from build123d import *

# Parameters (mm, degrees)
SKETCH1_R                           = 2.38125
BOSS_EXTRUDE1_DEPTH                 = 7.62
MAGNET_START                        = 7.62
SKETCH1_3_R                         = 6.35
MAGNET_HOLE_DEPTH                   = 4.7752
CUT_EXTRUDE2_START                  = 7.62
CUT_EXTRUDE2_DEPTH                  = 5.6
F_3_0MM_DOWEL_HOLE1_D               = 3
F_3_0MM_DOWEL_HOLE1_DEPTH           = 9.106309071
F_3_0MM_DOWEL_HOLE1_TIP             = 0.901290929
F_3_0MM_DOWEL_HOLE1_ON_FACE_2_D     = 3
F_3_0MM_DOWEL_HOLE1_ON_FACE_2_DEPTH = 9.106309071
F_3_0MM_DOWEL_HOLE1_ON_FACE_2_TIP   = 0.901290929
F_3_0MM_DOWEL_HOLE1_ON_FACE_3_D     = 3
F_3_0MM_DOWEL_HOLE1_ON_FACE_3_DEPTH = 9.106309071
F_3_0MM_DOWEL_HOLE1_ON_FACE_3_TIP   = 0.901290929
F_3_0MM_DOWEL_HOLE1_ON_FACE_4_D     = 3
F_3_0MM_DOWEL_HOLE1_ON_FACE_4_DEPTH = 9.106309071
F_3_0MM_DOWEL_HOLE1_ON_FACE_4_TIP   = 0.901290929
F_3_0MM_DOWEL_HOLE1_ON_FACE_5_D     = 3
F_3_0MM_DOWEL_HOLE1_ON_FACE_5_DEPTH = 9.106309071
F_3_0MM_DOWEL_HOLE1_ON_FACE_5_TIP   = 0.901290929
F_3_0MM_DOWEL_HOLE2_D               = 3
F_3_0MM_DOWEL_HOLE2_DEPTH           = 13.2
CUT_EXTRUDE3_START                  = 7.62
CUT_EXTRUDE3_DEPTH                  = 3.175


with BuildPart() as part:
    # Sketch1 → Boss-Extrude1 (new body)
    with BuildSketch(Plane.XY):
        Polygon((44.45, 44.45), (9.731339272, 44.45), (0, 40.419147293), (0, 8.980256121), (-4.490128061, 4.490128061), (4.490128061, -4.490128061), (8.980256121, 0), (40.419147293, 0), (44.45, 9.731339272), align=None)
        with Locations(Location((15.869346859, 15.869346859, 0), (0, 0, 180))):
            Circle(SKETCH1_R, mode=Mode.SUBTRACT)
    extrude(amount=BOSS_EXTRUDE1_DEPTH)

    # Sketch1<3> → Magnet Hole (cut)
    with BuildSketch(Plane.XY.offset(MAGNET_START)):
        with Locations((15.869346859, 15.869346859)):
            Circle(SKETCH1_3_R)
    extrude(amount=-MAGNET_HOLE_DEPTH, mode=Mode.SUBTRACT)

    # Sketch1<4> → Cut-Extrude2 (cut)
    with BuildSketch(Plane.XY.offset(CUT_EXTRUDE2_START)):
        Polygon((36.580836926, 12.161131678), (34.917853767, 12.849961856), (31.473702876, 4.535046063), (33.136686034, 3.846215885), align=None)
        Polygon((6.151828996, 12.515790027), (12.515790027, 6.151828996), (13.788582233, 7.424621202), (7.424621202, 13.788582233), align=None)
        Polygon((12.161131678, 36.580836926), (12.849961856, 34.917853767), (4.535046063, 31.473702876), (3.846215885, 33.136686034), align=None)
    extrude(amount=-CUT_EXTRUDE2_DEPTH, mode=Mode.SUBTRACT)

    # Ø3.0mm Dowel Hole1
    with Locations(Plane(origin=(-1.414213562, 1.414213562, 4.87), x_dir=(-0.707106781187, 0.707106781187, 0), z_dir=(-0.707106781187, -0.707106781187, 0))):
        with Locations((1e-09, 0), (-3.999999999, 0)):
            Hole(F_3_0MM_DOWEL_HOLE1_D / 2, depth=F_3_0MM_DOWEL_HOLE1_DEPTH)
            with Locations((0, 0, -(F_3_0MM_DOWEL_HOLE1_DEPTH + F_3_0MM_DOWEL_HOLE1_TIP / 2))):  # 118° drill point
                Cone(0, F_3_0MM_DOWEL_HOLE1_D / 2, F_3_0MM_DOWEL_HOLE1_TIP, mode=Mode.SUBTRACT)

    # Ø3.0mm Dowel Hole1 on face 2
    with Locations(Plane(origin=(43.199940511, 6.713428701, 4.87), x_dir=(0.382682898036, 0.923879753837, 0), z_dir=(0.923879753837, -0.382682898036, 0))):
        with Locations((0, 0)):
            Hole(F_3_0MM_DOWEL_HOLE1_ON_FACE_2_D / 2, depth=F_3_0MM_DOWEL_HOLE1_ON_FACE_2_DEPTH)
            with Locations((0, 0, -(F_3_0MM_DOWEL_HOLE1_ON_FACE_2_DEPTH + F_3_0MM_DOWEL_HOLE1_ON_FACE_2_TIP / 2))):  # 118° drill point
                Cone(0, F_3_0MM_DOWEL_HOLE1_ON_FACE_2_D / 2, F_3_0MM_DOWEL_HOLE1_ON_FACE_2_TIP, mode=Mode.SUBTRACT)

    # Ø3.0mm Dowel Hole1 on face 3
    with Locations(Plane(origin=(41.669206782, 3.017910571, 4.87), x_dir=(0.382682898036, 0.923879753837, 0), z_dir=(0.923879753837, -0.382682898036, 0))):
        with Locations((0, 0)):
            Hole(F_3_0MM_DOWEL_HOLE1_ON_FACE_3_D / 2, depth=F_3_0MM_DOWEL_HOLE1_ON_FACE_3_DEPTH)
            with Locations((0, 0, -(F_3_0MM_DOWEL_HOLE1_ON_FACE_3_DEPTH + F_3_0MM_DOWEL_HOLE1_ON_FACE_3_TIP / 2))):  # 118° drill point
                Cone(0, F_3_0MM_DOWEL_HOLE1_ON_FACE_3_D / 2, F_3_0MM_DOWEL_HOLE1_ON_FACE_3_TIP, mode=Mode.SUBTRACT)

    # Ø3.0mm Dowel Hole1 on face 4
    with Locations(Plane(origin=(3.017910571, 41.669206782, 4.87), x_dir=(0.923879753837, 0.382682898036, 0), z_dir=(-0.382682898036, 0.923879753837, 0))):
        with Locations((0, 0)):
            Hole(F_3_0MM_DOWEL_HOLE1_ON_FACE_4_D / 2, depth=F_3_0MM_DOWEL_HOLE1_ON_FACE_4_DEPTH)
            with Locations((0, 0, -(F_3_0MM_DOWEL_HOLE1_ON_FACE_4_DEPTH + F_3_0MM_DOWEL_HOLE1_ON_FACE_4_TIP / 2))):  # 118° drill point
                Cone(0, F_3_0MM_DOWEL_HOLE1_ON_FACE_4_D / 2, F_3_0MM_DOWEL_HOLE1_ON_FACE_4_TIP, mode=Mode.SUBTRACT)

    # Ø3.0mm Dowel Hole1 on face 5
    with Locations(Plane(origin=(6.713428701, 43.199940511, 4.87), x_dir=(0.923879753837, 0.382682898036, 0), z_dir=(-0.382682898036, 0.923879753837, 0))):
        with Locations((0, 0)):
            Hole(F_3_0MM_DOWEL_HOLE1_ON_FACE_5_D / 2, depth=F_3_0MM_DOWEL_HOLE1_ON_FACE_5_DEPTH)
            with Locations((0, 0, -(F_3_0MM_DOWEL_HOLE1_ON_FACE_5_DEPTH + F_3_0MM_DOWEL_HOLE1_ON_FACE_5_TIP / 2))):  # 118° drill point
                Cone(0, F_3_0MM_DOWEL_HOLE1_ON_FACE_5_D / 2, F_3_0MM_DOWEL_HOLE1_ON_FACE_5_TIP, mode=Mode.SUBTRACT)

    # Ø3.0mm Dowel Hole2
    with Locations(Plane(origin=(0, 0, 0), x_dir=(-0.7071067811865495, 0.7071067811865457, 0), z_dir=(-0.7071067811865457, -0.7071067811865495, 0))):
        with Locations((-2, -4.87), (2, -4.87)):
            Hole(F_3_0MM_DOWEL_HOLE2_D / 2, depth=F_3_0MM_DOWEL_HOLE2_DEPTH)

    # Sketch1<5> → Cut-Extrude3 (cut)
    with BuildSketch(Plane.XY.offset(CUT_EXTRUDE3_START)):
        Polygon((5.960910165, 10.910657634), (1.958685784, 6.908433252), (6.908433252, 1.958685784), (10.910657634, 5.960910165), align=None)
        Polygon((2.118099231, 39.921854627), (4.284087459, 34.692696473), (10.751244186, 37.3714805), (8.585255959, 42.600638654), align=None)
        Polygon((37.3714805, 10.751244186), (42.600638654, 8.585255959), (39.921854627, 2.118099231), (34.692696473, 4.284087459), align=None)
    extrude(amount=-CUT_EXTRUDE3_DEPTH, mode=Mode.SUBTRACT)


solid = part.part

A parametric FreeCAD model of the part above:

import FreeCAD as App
import Part
import Sketcher

V = App.Vector
Q = App.Units.Quantity


def add_polygon(sketch, points):
    """Adds a closed chain of lines whose ends are joined by coincident constraints."""
    first, n = sketch.GeometryCount, len(points)
    for a, b in zip(points, points[1:] + points[:1]):
        sketch.addGeometry(Part.LineSegment(App.Vector(*a, 0), App.Vector(*b, 0)), False)
    for i in range(n):
        sketch.addConstraint(Sketcher.Constraint("Coincident", first + i, 2, first + (i + 1) % n, 1))

doc = App.newDocument("Part")
body = doc.addObject("PartDesign::Body", "Body")

# Sketch on XY plane
sketch1 = body.newObject("Sketcher::SketchObject", "Sketch")
sketch1.AttachmentSupport = (doc.getObject("XY_Plane"), [""])
sketch1.MapMode = "FlatFace"
add_polygon(sketch1, [(44.5, 44.5), (9.7, 44.5), (0, 40.4), (0, 9), (-4.5, 4.5), (4.5, -4.5), (9, 0), (40.4, 0), (44.5, 9.7)])  # lines 0-8
sketch1.addGeometry(Part.Circle(V(15.9, 15.9, 0), V(0, 0, 1), 2.4), False)  # 9
sketch1.addConstraint([
    Sketcher.Constraint("Horizontal", 0),
    Sketcher.Constraint("Vertical", 2),
    Sketcher.Constraint("Horizontal", 6),
    Sketcher.Constraint("Vertical", 8),
    Sketcher.Constraint("Symmetric", 3, 2, 4, 2, -1, 1),
    Sketcher.Constraint("PointOnObject", 1, 2, -2),
    Sketcher.Constraint("PointOnObject", 5, 2, -1),
    Sketcher.Constraint("Perpendicular", 3, 4),
    Sketcher.Constraint("Perpendicular", 4, 5),
    Sketcher.Constraint("Equal", 6, 2),
    Sketcher.Constraint("Equal", 0, 8),
    Sketcher.Constraint("Equal", 3, 5),
    Sketcher.Constraint("Equal", 1, 7),
    Sketcher.Constraint("Angle", 1, Q("-157.5 deg")),
    Sketcher.Constraint("Distance", 4, 12.7),
    Sketcher.Constraint("Diameter", 9, 4.7625),
    Sketcher.Constraint("DistanceY", -1, 1, 0, 2, 44.45),
    Sketcher.Constraint("DistanceX", 0, 2, 0, 1, 34.718661),
    Sketcher.Constraint("DistanceY", 9, 3, 1, 2, 24.5498),
    Sketcher.Constraint("DistanceX", 9, 3, 6, 2, 24.5498),
])
pad1 = body.newObject("PartDesign::Pad", "Pad")
pad1.Profile = sketch1
pad1.Length = 7.62

# Sketch on XY plane
sketch2 = body.newObject("Sketcher::SketchObject", "Sketch001")
sketch2.AttachmentSupport = (doc.getObject("XY_Plane"), [""])
sketch2.MapMode = "FlatFace"
sketch2.AttachmentOffset = App.Placement(V(0, 0, 7.62), App.Rotation())
sketch2.addGeometry(Part.Circle(V(16, 16, 0), V(0, 0, 1), 6), False)
sketch2.addConstraint([
    Sketcher.Constraint("Diameter", 0, 12.7),
    Sketcher.Constraint("DistanceX", -1, 1, 0, 3, 15.869347),
    Sketcher.Constraint("DistanceY", -1, 1, 0, 3, 15.869347),
])
pocket1 = body.newObject("PartDesign::Pocket", "Pocket")
pocket1.Profile = sketch2
pocket1.Length = 4.7752

# Sketch on XY plane
sketch3 = body.newObject("Sketcher::SketchObject", "Sketch002")
sketch3.AttachmentSupport = (doc.getObject("XY_Plane"), [""])
sketch3.MapMode = "FlatFace"
sketch3.AttachmentOffset = App.Placement(V(0, 0, 7.62), App.Rotation())
add_polygon(sketch3, [(36.6, 12.2), (34.9, 12.8), (31.5, 4.5), (33.1, 3.8)])  # lines 0-3
add_polygon(sketch3, [(6.2, 12.5), (12.5, 6.2), (13.8, 7.4), (7.4, 13.8)])  # lines 4-7
add_polygon(sketch3, [(12.8, 34.9), (12.2, 36.6), (3.8, 33.1), (4.5, 31.5)])  # lines 8-11
sketch3.addConstraint([
    Sketcher.Constraint("Perpendicular", 0, 1),
    Sketcher.Constraint("Perpendicular", 1, 2),
    Sketcher.Constraint("Perpendicular", 2, 3),
    Sketcher.Constraint("Perpendicular", 4, 5),
    Sketcher.Constraint("Perpendicular", 5, 6),
    Sketcher.Constraint("Perpendicular", 6, 7),
    Sketcher.Constraint("Perpendicular", 8, 9),
    Sketcher.Constraint("Perpendicular", 9, 10),
    Sketcher.Constraint("Perpendicular", 10, 11),
    Sketcher.Constraint("Equal", 3, 4),
    Sketcher.Constraint("Equal", 2, 5),
    Sketcher.Constraint("Equal", 7, 8),
    Sketcher.Constraint("Equal", 6, 9),
    Sketcher.Constraint("Angle", 4, Q("-45 deg")),
    Sketcher.Constraint("Distance", 1, 9.0),
    Sketcher.Constraint("Angle", 0, Q("157.5 deg")),
    Sketcher.Constraint("Angle", 8, Q("112.5 deg")),
    Sketcher.Constraint("Distance", 0, 1.8),
    Sketcher.Constraint("DistanceY", -1, 1, 0, 2, 12.849962),
    Sketcher.Constraint("DistanceX", -1, 1, 4, 2, 12.51579),
    Sketcher.Constraint("DistanceY", -1, 1, 4, 2, 6.151829),
    Sketcher.Constraint("DistanceX", -1, 1, 8, 2, 12.161132),
    Sketcher.Constraint("DistanceX", 5, 2, 1, 2, 17.685121),
    Sketcher.Constraint("DistanceY", 6, 2, 10, 2, 17.685121),
])
pocket2 = body.newObject("PartDesign::Pocket", "Pocket001")
pocket2.Profile = sketch3
pocket2.Length = 5.6

# Sketch on an angled plane
sketch4 = body.newObject("Sketcher::SketchObject", "Sketch003")
sketch4.Placement = App.Placement(V(0, 0, 0), App.Rotation(V(-0.707106781, 0.707106781, 0), V(0, 0, -0.999999999), V(-0.707106781, -0.707106781, 0), "ZXY"))
sketch4.addGeometry([
    Part.Circle(V(2, -4.9, 0), V(0, 0, 1), 1.5),
    Part.Circle(V(-2, -4.9, 0), V(0, 0, 1), 1.5),
], False)
sketch4.addConstraint([
    Sketcher.Constraint("Equal", 0, 1),
    Sketcher.Constraint("Symmetric", 0, 3, 1, 3, -2),
    Sketcher.Constraint("Diameter", 0, 3.0),
    Sketcher.Constraint("DistanceX", -1, 1, 0, 3, 2.0),
    Sketcher.Constraint("DistanceY", 0, 3, -1, 1, 4.87),
])
doc.recompute()
hole = body.newObject("PartDesign::Hole", "Hole")
hole.Profile = sketch4
hole.ThreadType = "None"
hole.Diameter = 3
hole.DepthType = "Dimension"
hole.Depth = 9.106309
hole.DrillPoint = "Angled"
hole.DrillPointAngle = 118

# Sketch on an angled plane
sketch5 = body.newObject("Sketcher::SketchObject", "Sketch004")
sketch5.Placement = App.Placement(V(34.499921, -14.290312, 0), App.Rotation(V(0.382682898, 0.923879754, 0), V(0, 0, 1), V(0.923879754, -0.382682898, 0), "ZXY"))
sketch5.addGeometry(Part.Circle(V(22.7, 4.9, 0), V(0, 0, 1), 1.5), False)
sketch5.addConstraint([
    Sketcher.Constraint("Diameter", 0, 3.0),
    Sketcher.Constraint("DistanceY", -1, 1, 0, 3, 4.87),
    Sketcher.Constraint("DistanceX", -1, 1, 0, 3, 22.734279),
])
doc.recompute()
hole2 = body.newObject("PartDesign::Hole", "Hole001")
hole2.Profile = sketch5
hole2.ThreadType = "None"
hole2.Diameter = 3
hole2.DepthType = "Dimension"
hole2.Depth = 9.106309
hole2.DrillPoint = "Angled"
hole2.DrillPointAngle = 118

# Sketch on an angled plane
sketch6 = body.newObject("Sketcher::SketchObject", "Sketch005")
sketch6.Placement = App.Placement(V(34.499918, -14.290311, 0), App.Rotation(V(0.382682898, 0.923879754, 0), V(0, 0, 1), V(0.923879754, -0.382682898, 0), "ZXY"))
sketch6.addGeometry(Part.Circle(V(18.7, 4.9, 0), V(0, 0, 1), 1.5), False)
sketch6.addConstraint([
    Sketcher.Constraint("Diameter", 0, 3.0),
    Sketcher.Constraint("DistanceY", -1, 1, 0, 3, 4.87),
    Sketcher.Constraint("DistanceX", -1, 1, 0, 3, 18.734279),
])
doc.recompute()
hole3 = body.newObject("PartDesign::Hole", "Hole002")
hole3.Profile = sketch6
hole3.ThreadType = "None"
hole3.Diameter = 3
hole3.DepthType = "Dimension"
hole3.Depth = 9.106309
hole3.DrillPoint = "Angled"
hole3.DrillPointAngle = 118

# Sketch on an angled plane
sketch7 = body.newObject("Sketcher::SketchObject", "Sketch006")
sketch7.Placement = App.Placement(V(-14.290311, 34.499918, 0), App.Rotation(V(0.923879754, 0.382682898, 0), V(0, 0, -1), V(-0.382682898, 0.923879754, 0), "ZXY"))
sketch7.addGeometry(Part.Circle(V(18.7, -4.9, 0), V(0, 0, 1), 1.5), False)
sketch7.addConstraint([
    Sketcher.Constraint("Diameter", 0, 3.0),
    Sketcher.Constraint("DistanceY", 0, 3, -1, 1, 4.87),
    Sketcher.Constraint("DistanceX", -1, 1, 0, 3, 18.734279),
])
doc.recompute()
hole4 = body.newObject("PartDesign::Hole", "Hole003")
hole4.Profile = sketch7
hole4.ThreadType = "None"
hole4.Diameter = 3
hole4.DepthType = "Dimension"
hole4.Depth = 9.106309
hole4.DrillPoint = "Angled"
hole4.DrillPointAngle = 118

# Sketch on an angled plane
sketch8 = body.newObject("Sketcher::SketchObject", "Sketch007")
sketch8.Placement = App.Placement(V(-14.290312, 34.499921, 0), App.Rotation(V(0.923879754, 0.382682898, 0), V(0, 0, -1), V(-0.382682898, 0.923879754, 0), "ZXY"))
sketch8.addGeometry(Part.Circle(V(22.7, -4.9, 0), V(0, 0, 1), 1.5), False)
sketch8.addConstraint([
    Sketcher.Constraint("Diameter", 0, 3.0),
    Sketcher.Constraint("DistanceY", 0, 3, -1, 1, 4.87),
    Sketcher.Constraint("DistanceX", -1, 1, 0, 3, 22.734279),
])
doc.recompute()
hole5 = body.newObject("PartDesign::Hole", "Hole004")
hole5.Profile = sketch8
hole5.ThreadType = "None"
hole5.Diameter = 3
hole5.DepthType = "Dimension"
hole5.Depth = 9.106309
hole5.DrillPoint = "Angled"
hole5.DrillPointAngle = 118

# Sketch on an angled plane
sketch9 = body.newObject("Sketcher::SketchObject", "Sketch008")
sketch9.Placement = App.Placement(V(0, 0, 0), App.Rotation(V(-0.707106781, 0.707106781, 0), V(0, 0, -0.999999999), V(-0.707106781, -0.707106781, 0), "ZXY"))
sketch9.addGeometry([
    Part.Circle(V(-2, -4.9, 0), V(0, 0, 1), 1.5),
    Part.Circle(V(2, -4.9, 0), V(0, 0, 1), 1.5),
], False)
sketch9.addConstraint([
    Sketcher.Constraint("Equal", 0, 1),
    Sketcher.Constraint("Symmetric", 0, 3, 1, 3, -2),
    Sketcher.Constraint("Diameter", 0, 3.0),
    Sketcher.Constraint("DistanceX", 0, 3, -1, 1, 2.0),
    Sketcher.Constraint("DistanceY", 0, 3, -1, 1, 4.87),
])
doc.recompute()
hole6 = body.newObject("PartDesign::Hole", "Hole005")
hole6.Profile = sketch9
hole6.ThreadType = "None"
hole6.Diameter = 3
hole6.DepthType = "Dimension"
hole6.Depth = 13.2
hole6.DrillPoint = "Flat"

# Sketch on XY plane
sketch10 = body.newObject("Sketcher::SketchObject", "Sketch009")
sketch10.AttachmentSupport = (doc.getObject("XY_Plane"), [""])
sketch10.MapMode = "FlatFace"
sketch10.AttachmentOffset = App.Placement(V(0, 0, 7.62), App.Rotation())
add_polygon(sketch10, [(6, 11), (2, 7), (7, 2), (11, 6)])  # lines 0-3
add_polygon(sketch10, [(2, 40), (4, 35), (11, 37), (9, 43)])  # lines 4-7
add_polygon(sketch10, [(43, 9), (37, 11), (35, 4), (40, 2)])  # lines 8-11
sketch10.addConstraint([
    Sketcher.Constraint("Perpendicular", 0, 1),
    Sketcher.Constraint("Perpendicular", 1, 2),
    Sketcher.Constraint("Perpendicular", 2, 3),
    Sketcher.Constraint("Perpendicular", 4, 5),
    Sketcher.Constraint("Perpendicular", 5, 6),
    Sketcher.Constraint("Perpendicular", 6, 7),
    Sketcher.Constraint("Perpendicular", 8, 9),
    Sketcher.Constraint("Perpendicular", 9, 10),
    Sketcher.Constraint("Perpendicular", 10, 11),
    Sketcher.Constraint("Equal", 2, 4),
    Sketcher.Constraint("Equal", 3, 5),
    Sketcher.Constraint("Equal", 6, 8),
    Sketcher.Constraint("Equal", 7, 9),
    Sketcher.Constraint("Angle", 0, Q("-135 deg")),
    Sketcher.Constraint("Distance", 1, 7.0),
    Sketcher.Constraint("Angle", 4, Q("-67.5 deg")),
    Sketcher.Constraint("Angle", 8, Q("157.5 deg")),
    Sketcher.Constraint("Distance", 0, 5.66),
    Sketcher.Constraint("DistanceX", -1, 1, 7, 2, 2.118099),
    Sketcher.Constraint("DistanceY", -1, 1, 10, 2, 2.118099),
    Sketcher.Constraint("DistanceX", 0, 2, 4, 2, 2.325402),
    Sketcher.Constraint("DistanceY", 1, 2, 9, 2, 2.325402),
    Sketcher.Constraint("DistanceY", -1, 1, 5, 2, 37.37148),
    Sketcher.Constraint("DistanceX", -1, 1, 8, 2, 37.37148),
])
pocket3 = body.newObject("PartDesign::Pocket", "Pocket002")
pocket3.Profile = sketch10
pocket3.Length = 3.175

doc.recompute()
